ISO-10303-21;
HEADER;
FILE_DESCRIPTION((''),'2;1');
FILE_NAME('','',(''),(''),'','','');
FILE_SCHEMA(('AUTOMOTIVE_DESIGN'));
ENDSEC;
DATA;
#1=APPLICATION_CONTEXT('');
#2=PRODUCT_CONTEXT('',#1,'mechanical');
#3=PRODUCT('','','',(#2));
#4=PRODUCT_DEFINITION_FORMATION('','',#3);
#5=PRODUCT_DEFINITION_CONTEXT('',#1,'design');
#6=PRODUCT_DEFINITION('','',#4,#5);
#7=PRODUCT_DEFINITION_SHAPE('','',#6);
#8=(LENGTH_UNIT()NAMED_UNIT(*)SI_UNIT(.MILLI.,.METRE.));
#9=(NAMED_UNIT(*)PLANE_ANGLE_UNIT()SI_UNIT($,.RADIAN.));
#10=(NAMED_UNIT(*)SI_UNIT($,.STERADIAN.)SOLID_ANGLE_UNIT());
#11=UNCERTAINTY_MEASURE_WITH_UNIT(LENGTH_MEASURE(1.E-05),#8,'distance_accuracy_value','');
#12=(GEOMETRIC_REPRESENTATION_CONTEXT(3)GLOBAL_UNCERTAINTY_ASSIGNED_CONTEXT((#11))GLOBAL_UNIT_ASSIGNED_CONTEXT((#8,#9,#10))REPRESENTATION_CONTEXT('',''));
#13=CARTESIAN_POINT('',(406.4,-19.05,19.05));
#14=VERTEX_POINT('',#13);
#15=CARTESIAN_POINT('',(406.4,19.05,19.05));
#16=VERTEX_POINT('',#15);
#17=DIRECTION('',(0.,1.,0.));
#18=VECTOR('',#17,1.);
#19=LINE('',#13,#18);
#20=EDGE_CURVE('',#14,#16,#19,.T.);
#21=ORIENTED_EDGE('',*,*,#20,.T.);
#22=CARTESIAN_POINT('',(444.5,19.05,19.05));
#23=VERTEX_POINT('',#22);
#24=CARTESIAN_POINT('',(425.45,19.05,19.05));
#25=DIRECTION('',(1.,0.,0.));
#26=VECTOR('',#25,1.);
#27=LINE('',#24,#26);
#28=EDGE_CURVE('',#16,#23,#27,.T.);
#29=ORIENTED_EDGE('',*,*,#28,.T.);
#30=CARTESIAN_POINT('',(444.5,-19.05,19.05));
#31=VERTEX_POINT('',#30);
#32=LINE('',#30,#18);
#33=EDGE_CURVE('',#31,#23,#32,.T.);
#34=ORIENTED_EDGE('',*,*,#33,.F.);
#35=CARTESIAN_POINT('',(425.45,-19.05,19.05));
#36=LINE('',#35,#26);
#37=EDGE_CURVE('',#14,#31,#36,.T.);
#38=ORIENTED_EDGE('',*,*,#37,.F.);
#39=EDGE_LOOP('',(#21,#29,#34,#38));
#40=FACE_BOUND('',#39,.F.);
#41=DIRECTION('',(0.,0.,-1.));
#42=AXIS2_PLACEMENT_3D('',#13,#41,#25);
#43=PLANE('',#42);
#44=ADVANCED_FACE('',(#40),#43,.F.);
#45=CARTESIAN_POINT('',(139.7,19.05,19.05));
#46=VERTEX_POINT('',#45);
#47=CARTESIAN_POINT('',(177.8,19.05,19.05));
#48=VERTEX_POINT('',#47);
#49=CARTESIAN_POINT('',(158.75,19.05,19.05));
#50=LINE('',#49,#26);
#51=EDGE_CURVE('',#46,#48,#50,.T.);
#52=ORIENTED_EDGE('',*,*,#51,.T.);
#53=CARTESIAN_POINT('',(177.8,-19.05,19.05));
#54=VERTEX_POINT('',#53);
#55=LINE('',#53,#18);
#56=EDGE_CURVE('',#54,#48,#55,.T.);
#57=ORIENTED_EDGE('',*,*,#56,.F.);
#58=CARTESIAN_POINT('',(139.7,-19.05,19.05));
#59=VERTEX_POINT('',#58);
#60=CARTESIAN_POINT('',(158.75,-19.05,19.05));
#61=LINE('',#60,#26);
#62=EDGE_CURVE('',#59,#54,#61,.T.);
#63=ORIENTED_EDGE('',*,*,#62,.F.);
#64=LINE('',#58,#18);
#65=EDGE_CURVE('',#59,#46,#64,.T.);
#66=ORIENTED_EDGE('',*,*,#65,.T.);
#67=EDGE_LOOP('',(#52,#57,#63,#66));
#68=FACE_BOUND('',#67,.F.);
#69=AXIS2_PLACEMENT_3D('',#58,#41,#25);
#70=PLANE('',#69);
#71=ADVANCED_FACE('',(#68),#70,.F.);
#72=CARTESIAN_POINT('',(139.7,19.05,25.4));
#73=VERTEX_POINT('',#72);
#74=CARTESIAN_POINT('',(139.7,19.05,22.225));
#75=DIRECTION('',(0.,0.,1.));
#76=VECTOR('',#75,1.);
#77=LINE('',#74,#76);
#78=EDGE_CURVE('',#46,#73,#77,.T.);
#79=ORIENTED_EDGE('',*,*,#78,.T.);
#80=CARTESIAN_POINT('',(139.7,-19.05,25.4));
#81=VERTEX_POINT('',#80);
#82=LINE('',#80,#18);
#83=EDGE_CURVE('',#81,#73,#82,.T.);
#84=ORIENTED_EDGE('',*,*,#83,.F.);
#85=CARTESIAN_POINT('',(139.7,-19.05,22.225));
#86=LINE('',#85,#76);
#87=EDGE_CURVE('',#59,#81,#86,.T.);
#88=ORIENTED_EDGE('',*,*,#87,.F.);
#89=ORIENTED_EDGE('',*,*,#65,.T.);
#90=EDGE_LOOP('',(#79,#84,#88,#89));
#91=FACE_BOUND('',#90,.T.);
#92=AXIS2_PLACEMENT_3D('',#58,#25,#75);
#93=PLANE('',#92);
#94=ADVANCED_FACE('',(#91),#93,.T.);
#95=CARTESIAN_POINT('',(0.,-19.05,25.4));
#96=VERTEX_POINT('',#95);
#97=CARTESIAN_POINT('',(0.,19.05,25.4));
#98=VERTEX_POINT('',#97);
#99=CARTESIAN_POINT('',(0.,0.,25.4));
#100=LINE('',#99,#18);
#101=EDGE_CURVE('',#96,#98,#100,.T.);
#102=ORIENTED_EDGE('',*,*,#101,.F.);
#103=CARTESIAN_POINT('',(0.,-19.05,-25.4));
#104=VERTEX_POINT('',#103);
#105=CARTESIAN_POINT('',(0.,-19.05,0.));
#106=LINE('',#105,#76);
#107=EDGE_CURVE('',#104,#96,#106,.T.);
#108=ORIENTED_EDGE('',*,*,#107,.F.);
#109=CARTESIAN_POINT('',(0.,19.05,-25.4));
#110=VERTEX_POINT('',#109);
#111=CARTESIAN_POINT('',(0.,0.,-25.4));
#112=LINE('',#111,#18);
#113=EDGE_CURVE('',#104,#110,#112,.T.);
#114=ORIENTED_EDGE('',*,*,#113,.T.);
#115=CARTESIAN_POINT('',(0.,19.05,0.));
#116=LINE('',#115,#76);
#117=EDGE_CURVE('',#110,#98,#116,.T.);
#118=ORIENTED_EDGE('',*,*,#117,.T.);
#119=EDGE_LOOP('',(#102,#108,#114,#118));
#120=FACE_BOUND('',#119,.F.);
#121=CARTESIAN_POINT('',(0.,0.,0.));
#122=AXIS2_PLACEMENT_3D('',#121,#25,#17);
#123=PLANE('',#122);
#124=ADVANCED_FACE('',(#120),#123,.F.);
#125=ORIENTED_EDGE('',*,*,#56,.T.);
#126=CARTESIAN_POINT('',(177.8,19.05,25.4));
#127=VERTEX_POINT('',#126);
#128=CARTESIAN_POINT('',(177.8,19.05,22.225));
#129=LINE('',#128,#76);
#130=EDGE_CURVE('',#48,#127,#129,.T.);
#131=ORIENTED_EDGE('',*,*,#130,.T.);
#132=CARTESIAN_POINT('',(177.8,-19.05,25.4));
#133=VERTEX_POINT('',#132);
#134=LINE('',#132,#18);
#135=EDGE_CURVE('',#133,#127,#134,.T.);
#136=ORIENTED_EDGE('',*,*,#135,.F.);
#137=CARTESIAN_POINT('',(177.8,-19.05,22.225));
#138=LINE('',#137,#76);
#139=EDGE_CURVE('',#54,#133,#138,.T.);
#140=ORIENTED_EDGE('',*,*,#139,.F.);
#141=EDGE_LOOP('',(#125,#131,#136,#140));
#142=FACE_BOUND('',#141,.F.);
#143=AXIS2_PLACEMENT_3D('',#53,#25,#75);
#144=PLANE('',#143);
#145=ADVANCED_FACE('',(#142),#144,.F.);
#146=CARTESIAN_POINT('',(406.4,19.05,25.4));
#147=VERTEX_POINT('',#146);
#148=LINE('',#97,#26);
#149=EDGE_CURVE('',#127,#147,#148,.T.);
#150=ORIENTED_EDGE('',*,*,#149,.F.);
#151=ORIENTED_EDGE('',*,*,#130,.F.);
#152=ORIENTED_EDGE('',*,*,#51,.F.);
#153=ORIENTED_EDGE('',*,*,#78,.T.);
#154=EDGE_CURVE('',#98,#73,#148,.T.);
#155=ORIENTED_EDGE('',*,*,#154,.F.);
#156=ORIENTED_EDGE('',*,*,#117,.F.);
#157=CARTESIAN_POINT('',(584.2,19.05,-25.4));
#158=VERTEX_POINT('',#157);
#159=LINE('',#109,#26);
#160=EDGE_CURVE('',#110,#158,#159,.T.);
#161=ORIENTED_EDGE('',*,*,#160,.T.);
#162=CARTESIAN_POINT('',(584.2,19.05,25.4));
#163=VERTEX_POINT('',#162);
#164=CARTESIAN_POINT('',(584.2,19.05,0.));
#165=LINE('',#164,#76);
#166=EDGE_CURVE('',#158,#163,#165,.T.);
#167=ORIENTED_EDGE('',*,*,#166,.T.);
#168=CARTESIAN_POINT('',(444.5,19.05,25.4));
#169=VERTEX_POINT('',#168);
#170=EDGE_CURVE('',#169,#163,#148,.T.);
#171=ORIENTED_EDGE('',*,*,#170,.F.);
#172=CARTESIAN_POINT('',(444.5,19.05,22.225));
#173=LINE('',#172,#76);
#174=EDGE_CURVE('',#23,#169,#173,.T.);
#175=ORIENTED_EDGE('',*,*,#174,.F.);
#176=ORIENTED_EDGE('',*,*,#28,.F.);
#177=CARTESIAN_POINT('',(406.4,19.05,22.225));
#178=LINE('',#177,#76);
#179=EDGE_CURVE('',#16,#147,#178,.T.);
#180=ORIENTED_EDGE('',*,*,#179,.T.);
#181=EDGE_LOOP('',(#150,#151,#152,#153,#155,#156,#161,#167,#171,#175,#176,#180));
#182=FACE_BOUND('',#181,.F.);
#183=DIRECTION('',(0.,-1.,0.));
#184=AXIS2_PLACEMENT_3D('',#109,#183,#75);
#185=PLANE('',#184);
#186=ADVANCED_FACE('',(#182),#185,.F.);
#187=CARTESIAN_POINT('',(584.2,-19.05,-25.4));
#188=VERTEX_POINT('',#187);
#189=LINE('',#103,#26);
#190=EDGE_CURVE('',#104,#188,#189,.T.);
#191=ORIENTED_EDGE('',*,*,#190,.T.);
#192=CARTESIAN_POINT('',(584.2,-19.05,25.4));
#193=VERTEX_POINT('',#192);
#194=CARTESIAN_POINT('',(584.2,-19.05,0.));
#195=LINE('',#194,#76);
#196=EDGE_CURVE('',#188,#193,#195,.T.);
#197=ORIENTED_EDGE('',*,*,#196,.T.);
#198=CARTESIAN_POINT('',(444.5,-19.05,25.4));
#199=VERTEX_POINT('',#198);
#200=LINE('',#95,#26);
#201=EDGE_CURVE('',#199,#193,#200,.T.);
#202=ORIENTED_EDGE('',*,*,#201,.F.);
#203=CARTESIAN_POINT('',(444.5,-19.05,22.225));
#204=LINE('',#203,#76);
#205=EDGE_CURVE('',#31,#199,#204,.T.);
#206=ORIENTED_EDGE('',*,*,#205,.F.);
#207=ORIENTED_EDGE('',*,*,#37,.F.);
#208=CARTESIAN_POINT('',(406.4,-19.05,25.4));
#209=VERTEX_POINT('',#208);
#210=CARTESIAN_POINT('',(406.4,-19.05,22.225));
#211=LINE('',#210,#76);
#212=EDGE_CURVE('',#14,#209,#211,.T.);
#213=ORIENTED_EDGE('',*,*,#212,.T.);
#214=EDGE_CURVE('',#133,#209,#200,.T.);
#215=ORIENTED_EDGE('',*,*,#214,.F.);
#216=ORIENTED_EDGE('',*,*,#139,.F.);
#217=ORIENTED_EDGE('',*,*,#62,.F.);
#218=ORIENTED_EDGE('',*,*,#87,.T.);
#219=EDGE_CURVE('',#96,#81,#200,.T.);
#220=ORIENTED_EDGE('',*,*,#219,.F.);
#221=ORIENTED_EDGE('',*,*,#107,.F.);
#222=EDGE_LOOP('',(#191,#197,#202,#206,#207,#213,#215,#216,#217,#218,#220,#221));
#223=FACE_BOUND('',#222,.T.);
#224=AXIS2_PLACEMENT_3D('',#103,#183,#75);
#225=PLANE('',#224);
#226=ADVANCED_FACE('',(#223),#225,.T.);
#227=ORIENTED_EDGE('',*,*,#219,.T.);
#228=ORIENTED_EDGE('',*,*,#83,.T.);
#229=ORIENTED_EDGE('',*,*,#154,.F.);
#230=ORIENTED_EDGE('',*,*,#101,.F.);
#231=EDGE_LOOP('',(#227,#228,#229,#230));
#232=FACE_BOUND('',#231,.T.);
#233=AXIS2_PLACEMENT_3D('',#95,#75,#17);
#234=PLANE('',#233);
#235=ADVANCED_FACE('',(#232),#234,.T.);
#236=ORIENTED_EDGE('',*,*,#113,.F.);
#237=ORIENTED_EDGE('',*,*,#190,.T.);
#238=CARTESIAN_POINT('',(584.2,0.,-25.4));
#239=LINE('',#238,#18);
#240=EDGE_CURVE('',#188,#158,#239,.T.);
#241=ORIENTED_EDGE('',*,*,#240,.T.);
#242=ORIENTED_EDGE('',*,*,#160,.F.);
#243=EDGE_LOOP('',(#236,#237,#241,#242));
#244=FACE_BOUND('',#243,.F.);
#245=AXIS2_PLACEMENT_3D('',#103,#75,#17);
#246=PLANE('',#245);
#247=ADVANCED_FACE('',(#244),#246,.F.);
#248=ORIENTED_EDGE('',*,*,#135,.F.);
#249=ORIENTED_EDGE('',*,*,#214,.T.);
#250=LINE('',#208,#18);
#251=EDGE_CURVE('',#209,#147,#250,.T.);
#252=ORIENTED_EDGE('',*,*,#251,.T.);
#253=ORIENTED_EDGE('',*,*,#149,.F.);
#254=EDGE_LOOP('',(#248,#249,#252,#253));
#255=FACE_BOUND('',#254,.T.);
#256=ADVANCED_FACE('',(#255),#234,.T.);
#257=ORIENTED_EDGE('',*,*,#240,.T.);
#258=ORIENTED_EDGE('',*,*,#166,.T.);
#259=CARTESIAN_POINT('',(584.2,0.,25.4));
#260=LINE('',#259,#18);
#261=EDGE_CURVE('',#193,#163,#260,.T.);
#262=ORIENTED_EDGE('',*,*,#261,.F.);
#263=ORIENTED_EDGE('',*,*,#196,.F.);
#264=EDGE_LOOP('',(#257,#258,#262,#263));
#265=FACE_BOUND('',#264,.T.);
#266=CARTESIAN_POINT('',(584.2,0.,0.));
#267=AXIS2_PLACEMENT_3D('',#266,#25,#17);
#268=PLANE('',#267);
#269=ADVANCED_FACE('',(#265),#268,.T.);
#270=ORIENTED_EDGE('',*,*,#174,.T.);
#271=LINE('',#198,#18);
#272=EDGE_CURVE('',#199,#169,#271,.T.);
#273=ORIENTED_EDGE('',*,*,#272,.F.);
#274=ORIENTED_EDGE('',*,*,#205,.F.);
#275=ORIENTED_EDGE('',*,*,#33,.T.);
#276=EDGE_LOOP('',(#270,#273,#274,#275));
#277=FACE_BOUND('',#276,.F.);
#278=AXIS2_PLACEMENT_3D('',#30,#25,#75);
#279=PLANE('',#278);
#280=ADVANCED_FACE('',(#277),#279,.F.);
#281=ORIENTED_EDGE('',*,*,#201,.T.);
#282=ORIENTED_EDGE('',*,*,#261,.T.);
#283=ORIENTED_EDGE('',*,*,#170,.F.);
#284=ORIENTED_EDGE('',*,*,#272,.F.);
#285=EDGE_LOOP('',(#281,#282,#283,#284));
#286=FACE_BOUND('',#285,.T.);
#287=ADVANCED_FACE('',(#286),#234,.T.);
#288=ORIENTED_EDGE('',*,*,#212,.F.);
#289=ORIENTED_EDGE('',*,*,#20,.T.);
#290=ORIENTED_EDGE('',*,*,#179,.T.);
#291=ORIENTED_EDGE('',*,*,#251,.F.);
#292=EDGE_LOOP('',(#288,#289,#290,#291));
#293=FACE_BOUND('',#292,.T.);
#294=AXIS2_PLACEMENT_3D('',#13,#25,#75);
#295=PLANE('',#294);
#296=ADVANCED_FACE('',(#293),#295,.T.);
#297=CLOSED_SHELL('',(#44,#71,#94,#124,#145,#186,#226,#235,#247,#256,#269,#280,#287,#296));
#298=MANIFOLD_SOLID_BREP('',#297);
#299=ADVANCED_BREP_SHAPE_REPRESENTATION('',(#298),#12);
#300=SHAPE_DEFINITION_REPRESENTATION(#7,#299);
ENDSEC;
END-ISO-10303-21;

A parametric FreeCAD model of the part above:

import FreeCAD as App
import Part
import Sketcher
Q = App.Units.Quantity


def add_polygon(sketch, points):
    """Adds a closed chain of lines whose ends are joined by coincident constraints."""
    first, n = sketch.GeometryCount, len(points)
    for a, b in zip(points, points[1:] + points[:1]):
        sketch.addGeometry(Part.LineSegment(App.Vector(*a, 0), App.Vector(*b, 0)), False)
    for i in range(n):
        sketch.addConstraint(Sketcher.Constraint("Coincident", first + i, 2, first + (i + 1) % n, 1))

doc = App.newDocument("Part")
body = doc.addObject("PartDesign::Body", "Body")

# Sketch on YZ plane
sketch1 = body.newObject("Sketcher::SketchObject", "Sketch")
sketch1.AttachmentSupport = (doc.getObject("YZ_Plane"), [""])
sketch1.MapMode = "FlatFace"
add_polygon(sketch1, [(-19, 25), (-19, -25), (19, -25), (19, 25)])  # lines 0-3
sketch1.addConstraint([
    Sketcher.Constraint("Vertical", 0),
    Sketcher.Constraint("Horizontal", 1),
    Sketcher.Constraint("Vertical", 2),
    Sketcher.Constraint("Horizontal", 3),
    Sketcher.Constraint("Symmetric", 0, 2, 2, 2, -1, 1),
    Sketcher.Constraint("DistanceY", 0, 2, 0, 1, Q("2 in")),
    Sketcher.Constraint("DistanceX", 1, 1, 1, 2, Q("1.5 in")),
])
pad1 = body.newObject("PartDesign::Pad", "Pad")
pad1.Profile = sketch1
pad1.Length = Q("23 in")

# Sketch on XZ plane
sketch2 = body.newObject("Sketcher::SketchObject", "Sketch001")
sketch2.AttachmentSupport = (doc.getObject("XZ_Plane"), [""])
sketch2.MapMode = "FlatFace"
sketch2.AttachmentOffset = App.Placement(App.Vector(0, 0, 0.75 * 25.4), App.Rotation())
add_polygon(sketch2, [(140, 25), (140, 19), (178, 19), (178, 25)])  # lines 0-3
add_polygon(sketch2, [(406, 25), (406, 19), (444, 19), (444, 25)])  # lines 4-7
sketch2.addConstraint([
    Sketcher.Constraint("Vertical", 0),
    Sketcher.Constraint("Horizontal", 1),
    Sketcher.Constraint("Vertical", 2),
    Sketcher.Constraint("Horizontal", 3),
    Sketcher.Constraint("Vertical", 4),
    Sketcher.Constraint("Horizontal", 5),
    Sketcher.Constraint("Vertical", 6),
    Sketcher.Constraint("Horizontal", 7),
    Sketcher.Constraint("Horizontal", 1, 2, 4, 2),
    Sketcher.Constraint("Horizontal", 3, 2, 6, 2),
    Sketcher.Constraint("Equal", 3, 5),
    Sketcher.Constraint("DistanceX", 1, 1, 1, 2, Q("1.5 in")),
    Sketcher.Constraint("DistanceX", -1, 1, 1, 2, Q("7 in")),
    Sketcher.Constraint("DistanceY", -1, 1, 2, 2, Q("1 in")),
    Sketcher.Constraint("DistanceX", -1, 1, 4, 2, Q("16 in")),
    Sketcher.Constraint("DistanceY", 0, 2, 0, 1, Q("0.25 in")),
])
pocket1 = body.newObject("PartDesign::Pocket", "Pocket")
pocket1.Profile = sketch2
pocket1.Type = "ThroughAll"

doc.recompute()
